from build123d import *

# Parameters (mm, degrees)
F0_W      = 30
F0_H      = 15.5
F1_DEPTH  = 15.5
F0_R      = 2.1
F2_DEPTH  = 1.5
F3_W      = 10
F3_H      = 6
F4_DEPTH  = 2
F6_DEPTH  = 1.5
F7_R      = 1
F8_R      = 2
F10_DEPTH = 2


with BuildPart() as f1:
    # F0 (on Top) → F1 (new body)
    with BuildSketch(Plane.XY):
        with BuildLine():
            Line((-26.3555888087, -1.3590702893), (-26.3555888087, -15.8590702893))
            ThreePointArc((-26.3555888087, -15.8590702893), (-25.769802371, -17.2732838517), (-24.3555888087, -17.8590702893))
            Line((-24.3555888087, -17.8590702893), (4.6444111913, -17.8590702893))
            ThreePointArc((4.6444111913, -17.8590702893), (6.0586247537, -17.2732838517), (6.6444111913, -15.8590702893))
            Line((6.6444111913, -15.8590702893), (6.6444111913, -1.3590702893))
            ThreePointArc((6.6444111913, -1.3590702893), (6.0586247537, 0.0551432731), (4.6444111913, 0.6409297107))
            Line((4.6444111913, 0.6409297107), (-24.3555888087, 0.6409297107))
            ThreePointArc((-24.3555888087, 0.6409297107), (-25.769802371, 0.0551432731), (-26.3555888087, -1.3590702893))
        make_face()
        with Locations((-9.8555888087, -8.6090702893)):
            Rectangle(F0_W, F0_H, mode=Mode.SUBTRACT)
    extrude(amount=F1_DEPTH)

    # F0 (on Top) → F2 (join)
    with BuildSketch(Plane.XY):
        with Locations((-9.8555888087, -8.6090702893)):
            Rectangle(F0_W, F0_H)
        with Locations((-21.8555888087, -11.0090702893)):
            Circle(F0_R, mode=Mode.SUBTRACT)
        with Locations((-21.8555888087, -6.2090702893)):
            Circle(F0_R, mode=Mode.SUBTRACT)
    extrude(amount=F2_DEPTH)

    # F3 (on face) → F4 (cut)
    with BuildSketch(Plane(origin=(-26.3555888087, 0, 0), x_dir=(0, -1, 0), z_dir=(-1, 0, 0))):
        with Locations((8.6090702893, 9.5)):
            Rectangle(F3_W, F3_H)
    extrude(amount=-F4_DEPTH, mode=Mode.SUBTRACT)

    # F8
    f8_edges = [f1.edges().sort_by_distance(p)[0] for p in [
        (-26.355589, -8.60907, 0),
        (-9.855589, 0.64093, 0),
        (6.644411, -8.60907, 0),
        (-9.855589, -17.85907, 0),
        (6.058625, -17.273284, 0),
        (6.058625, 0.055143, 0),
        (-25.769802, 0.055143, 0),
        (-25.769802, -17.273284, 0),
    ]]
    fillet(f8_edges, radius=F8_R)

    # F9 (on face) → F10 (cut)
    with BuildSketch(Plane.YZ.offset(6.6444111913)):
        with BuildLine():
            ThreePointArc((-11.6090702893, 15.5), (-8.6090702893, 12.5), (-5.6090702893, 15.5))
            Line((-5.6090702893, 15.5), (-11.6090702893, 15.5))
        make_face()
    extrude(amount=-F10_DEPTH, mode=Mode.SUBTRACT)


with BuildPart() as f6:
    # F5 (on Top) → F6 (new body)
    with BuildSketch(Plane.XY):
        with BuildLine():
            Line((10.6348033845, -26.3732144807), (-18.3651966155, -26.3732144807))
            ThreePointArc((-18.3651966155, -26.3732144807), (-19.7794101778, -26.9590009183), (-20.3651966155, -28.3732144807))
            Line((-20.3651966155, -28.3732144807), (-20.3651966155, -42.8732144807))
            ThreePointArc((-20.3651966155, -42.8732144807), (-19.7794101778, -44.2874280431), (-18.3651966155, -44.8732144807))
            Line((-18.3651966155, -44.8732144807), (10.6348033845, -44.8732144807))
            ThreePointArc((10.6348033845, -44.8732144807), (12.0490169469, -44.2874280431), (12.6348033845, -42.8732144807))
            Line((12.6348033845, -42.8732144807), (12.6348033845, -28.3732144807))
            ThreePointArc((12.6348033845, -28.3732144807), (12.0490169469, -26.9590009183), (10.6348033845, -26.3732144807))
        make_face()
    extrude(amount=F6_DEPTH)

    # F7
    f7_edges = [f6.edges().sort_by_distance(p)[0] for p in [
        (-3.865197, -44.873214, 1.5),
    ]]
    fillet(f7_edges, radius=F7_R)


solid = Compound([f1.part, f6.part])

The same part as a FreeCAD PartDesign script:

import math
import FreeCAD as App
import Part
import Sketcher
Q = App.Units.Quantity


def edges_at(feature, points):
    """Names of the edges that pass closest to the given points."""
    edges = feature.Shape.Edges
    near = lambda p: min(range(len(edges)), key=lambda i: edges[i].distToShape(Part.Vertex(*p))[0])
    return sorted({f"Edge{near(p) + 1}" for p in points})

doc = App.newDocument("Part")
params = doc.addObject("Spreadsheet::Sheet", "Params")
for row, (alias, value) in enumerate([
    ("sketch1_radius", "2 mm"),
    ("sketch1_width", "29 mm"),
    ("sketch1_width2", "30 mm"),
    ("sketch1_height", "14.5 mm"),
    ("sketch1_height2", "15.5 mm"),
    ("pad1_length", "15.5 mm"),
    ("sketch2_diameter", "4.2 mm"),
    ("sketch2_width", "30 mm"),
    ("sketch2_height", "15.5 mm"),
    ("pad2_length", "1.5 mm"),
    ("sketch3_width", "10 mm"),
    ("sketch3_height", "6 mm"),
    ("pocket1_length", "2 mm"),
    ("fillet_radius", "2 mm"),
    ("sketch4_radius", "3 mm"),
    ("pocket2_length", "2 mm"),
    ("sketch5_radius", "2 mm"),
    ("sketch5_width", "29 mm"),
    ("sketch5_height", "14.5 mm"),
    ("pad3_length", "1.5 mm"),
    ("fillet2_radius", "1 mm"),
], start=1):
    params.set(f"A{row}", alias)
    params.set(f"B{row}", "=" + value)
    params.setAlias(f"B{row}", alias)

body = doc.addObject("PartDesign::Body", "Body")

sketch1 = body.newObject("Sketcher::SketchObject", "Sketch")
sketch1.AttachmentSupport = (doc.getObject("XY_Plane"), [""])
sketch1.MapMode = "FlatFace"
sketch1.addGeometry([
    Part.LineSegment(App.Vector(-26.4, -1.4, 0), App.Vector(-26.4, -15.9, 0)),
    Part.ArcOfCircle(Part.Circle(App.Vector(-24.4, -15.9, 0), App.Vector(0, 0, 1), 2), math.radians(180), math.radians(270)),
    Part.LineSegment(App.Vector(-24.4, -17.9, 0), App.Vector(4.6, -17.9, 0)),
    Part.ArcOfCircle(Part.Circle(App.Vector(4.6, -15.9, 0), App.Vector(0, 0, 1), 2), math.radians(-90), math.radians(0)),
    Part.LineSegment(App.Vector(6.6, -15.9, 0), App.Vector(6.6, -1.4, 0)),
    Part.ArcOfCircle(Part.Circle(App.Vector(4.6, -1.4, 0), App.Vector(0, 0, 1), 2), math.radians(0), math.radians(90)),
    Part.LineSegment(App.Vector(4.6, 0.6, 0), App.Vector(-24.4, 0.6, 0)),
    Part.ArcOfCircle(Part.Circle(App.Vector(-24.4, -1.4, 0), App.Vector(0, 0, 1), 2), math.radians(90), math.radians(180)),
    Part.LineSegment(App.Vector(5.1, -16.4, 0), App.Vector(-24.9, -16.4, 0)),
    Part.LineSegment(App.Vector(-24.9, -16.4, 0), App.Vector(-24.9, -0.9, 0)),
    Part.LineSegment(App.Vector(-24.9, -0.9, 0), App.Vector(5.1, -0.9, 0)),
    Part.LineSegment(App.Vector(5.1, -0.9, 0), App.Vector(5.1, -16.4, 0)),
], False)
sketch1.addConstraint([
    Sketcher.Constraint("Tangent", 0, 2, 1, 1),
    Sketcher.Constraint("Tangent", 1, 2, 2, 1),
    Sketcher.Constraint("Tangent", 2, 2, 3, 1),
    Sketcher.Constraint("Tangent", 3, 2, 4, 1),
    Sketcher.Constraint("Tangent", 4, 2, 5, 1),
    Sketcher.Constraint("Tangent", 5, 2, 6, 1),
    Sketcher.Constraint("Tangent", 6, 2, 7, 1),
    Sketcher.Constraint("Tangent", 7, 2, 0, 1),
    Sketcher.Constraint("Coincident", 8, 2, 9, 1),
    Sketcher.Constraint("Coincident", 9, 2, 10, 1),
    Sketcher.Constraint("Coincident", 10, 2, 11, 1),
    Sketcher.Constraint("Coincident", 11, 2, 8, 1),
    Sketcher.Constraint("Vertical", 0),
    Sketcher.Constraint("Horizontal", 2),
    Sketcher.Constraint("Vertical", 4),
    Sketcher.Constraint("Horizontal", 6),
    Sketcher.Constraint("Horizontal", 8),
    Sketcher.Constraint("Vertical", 9),
    Sketcher.Constraint("Horizontal", 10),
    Sketcher.Constraint("Vertical", 11),
    Sketcher.Constraint("Equal", 1, 3),
    Sketcher.Constraint("Equal", 3, 5),
    Sketcher.Constraint("Equal", 5, 7),
    Sketcher.Constraint("Radius", 1, Q("2 mm")),
    Sketcher.Constraint("DistanceX", 2, 1, 2, 2, Q("29 mm")),
    Sketcher.Constraint("DistanceX", 8, 2, 8, 1, Q("30 mm")),
    Sketcher.Constraint("DistanceY", 0, 2, 0, 1, Q("14.5 mm")),
    Sketcher.Constraint("DistanceY", 9, 1, 9, 2, Q("15.5 mm")),
    Sketcher.Constraint("DistanceY", 8, 2, 7, 3, Q("15 mm")),
    Sketcher.Constraint("DistanceX", 8, 2, 1, 3, Q("0.5 mm")),
    Sketcher.Constraint("DistanceX", 1, 3, -1, 1, Q("24.355589 mm")),
    Sketcher.Constraint("DistanceY", 1, 3, -1, 1, Q("15.85907 mm")),
])
sketch1.setExpression("Constraints[23]", "Params.sketch1_radius")
sketch1.setExpression("Constraints[24]", "Params.sketch1_width")
sketch1.setExpression("Constraints[25]", "Params.sketch1_width2")
sketch1.setExpression("Constraints[26]", "Params.sketch1_height")
sketch1.setExpression("Constraints[27]", "Params.sketch1_height2")
pad1 = body.newObject("PartDesign::Pad", "Pad")
pad1.Profile = sketch1
pad1.setExpression("Length", "Params.pad1_length")

sketch2 = body.newObject("Sketcher::SketchObject", "Sketch001")
sketch2.AttachmentSupport = (doc.getObject("XY_Plane"), [""])
sketch2.MapMode = "FlatFace"
sketch2.addGeometry([
    Part.LineSegment(App.Vector(-24.9, -0.9, 0), App.Vector(-24.9, -16.4, 0)),
    Part.LineSegment(App.Vector(-24.9, -16.4, 0), App.Vector(5.1, -16.4, 0)),
    Part.LineSegment(App.Vector(5.1, -16.4, 0), App.Vector(5.1, -0.9, 0)),
    Part.LineSegment(App.Vector(5.1, -0.9, 0), App.Vector(-24.9, -0.9, 0)),
    Part.Circle(App.Vector(-21.9, -11, 0), App.Vector(0, 0, 1), 2.1),
    Part.Circle(App.Vector(-21.9, -6.2, 0), App.Vector(0, 0, 1), 2.1),
], False)
sketch2.addConstraint([
    Sketcher.Constraint("Coincident", 0, 2, 1, 1),
    Sketcher.Constraint("Coincident", 1, 2, 2, 1),
    Sketcher.Constraint("Coincident", 2, 2, 3, 1),
    Sketcher.Constraint("Coincident", 3, 2, 0, 1),
    Sketcher.Constraint("Vertical", 0),
    Sketcher.Constraint("Horizontal", 1),
    Sketcher.Constraint("Vertical", 2),
    Sketcher.Constraint("Horizontal", 3),
    Sketcher.Constraint("Equal", 4, 5),
    Sketcher.Constraint("Vertical", 4, 3, 5, 3),
    Sketcher.Constraint("Diameter", 4, Q("4.2 mm")),
    Sketcher.Constraint("DistanceX", 1, 1, 1, 2, Q("30 mm")),
    Sketcher.Constraint("DistanceY", 0, 2, 0, 1, Q("15.5 mm")),
    Sketcher.Constraint("DistanceX", 0, 2, 4, 3, Q("3 mm")),
    Sketcher.Constraint("DistanceY", 4, 3, 5, 3, Q("4.8 mm")),
    Sketcher.Constraint("DistanceY", 0, 2, 4, 3, Q("5.35 mm")),
    Sketcher.Constraint("DistanceX", 4, 3, -1, 1, Q("21.855589 mm")),
    Sketcher.Constraint("DistanceY", 4, 3, -1, 1, Q("11.00907 mm")),
])
sketch2.setExpression("Constraints[10]", "Params.sketch2_diameter")
sketch2.setExpression("Constraints[11]", "Params.sketch2_width")
sketch2.setExpression("Constraints[12]", "Params.sketch2_height")
pad2 = body.newObject("PartDesign::Pad", "Pad001")
pad2.Profile = sketch2
pad2.setExpression("Length", "Params.pad2_length")

sketch3 = body.newObject("Sketcher::SketchObject", "Sketch002")
sketch3.AttachmentSupport = (doc.getObject("YZ_Plane"), [""])
sketch3.MapMode = "FlatFace"
sketch3.AttachmentOffset = App.Placement(App.Vector(0, 0, -26.355589), App.Rotation())
sketch3.addGeometry([
    Part.LineSegment(App.Vector(-4, 12, 0), App.Vector(-4, 6, 0)),
    Part.LineSegment(App.Vector(-4, 6, 0), App.Vector(-14, 6, 0)),
    Part.LineSegment(App.Vector(-14, 6, 0), App.Vector(-14, 12, 0)),
    Part.LineSegment(App.Vector(-14, 12, 0), App.Vector(-4, 12, 0)),
], False)
sketch3.addConstraint([
    Sketcher.Constraint("Coincident", 0, 2, 1, 1),
    Sketcher.Constraint("Coincident", 1, 2, 2, 1),
    Sketcher.Constraint("Coincident", 2, 2, 3, 1),
    Sketcher.Constraint("Coincident", 3, 2, 0, 1),
    Sketcher.Constraint("Vertical", 0),
    Sketcher.Constraint("Horizontal", 1),
    Sketcher.Constraint("Vertical", 2),
    Sketcher.Constraint("Horizontal", 3),
    Sketcher.Constraint("DistanceX", 1, 2, 1, 1, Q("10 mm")),
    Sketcher.Constraint("DistanceY", 0, 2, 0, 1, Q("6 mm")),
    Sketcher.Constraint("DistanceY", -1, 1, 0, 2, Q("6.5 mm")),
    Sketcher.Constraint("DistanceX", 0, 2, -1, 1, Q("3.60907 mm")),
])
sketch3.setExpression("Constraints[8]", "Params.sketch3_width")
sketch3.setExpression("Constraints[9]", "Params.sketch3_height")
pocket1 = body.newObject("PartDesign::Pocket", "Pocket")
pocket1.Profile = sketch3
pocket1.setExpression("Length", "Params.pocket1_length")
pocket1.Reversed = True
doc.recompute()

fillet = body.newObject("PartDesign::Fillet", "Fillet")
fillet.Base = (pocket1, edges_at(pocket1, [
    (-26.356, -8.609, 0),
    (-9.856, 0.641, 0),
    (6.644, -8.609, 0),
    (-9.856, -17.859, 0),
    (6.059, -17.273, 0),
    (6.059, 0.055, 0),
    (-25.77, 0.055, 0),
    (-25.77, -17.273, 0),
]))
fillet.setExpression("Radius", "Params.fillet_radius")

sketch4 = body.newObject("Sketcher::SketchObject", "Sketch003")
sketch4.AttachmentSupport = (doc.getObject("YZ_Plane"), [""])
sketch4.MapMode = "FlatFace"
sketch4.AttachmentOffset = App.Placement(App.Vector(0, 0, 6.644411), App.Rotation())
sketch4.addGeometry([
    Part.ArcOfCircle(Part.Circle(App.Vector(-8.6, 15.5, 0), App.Vector(0, 0, 1), 3), math.radians(180), math.radians(360)),
    Part.LineSegment(App.Vector(-5.6, 15.5, 0), App.Vector(-11.6, 15.5, 0)),
], False)
sketch4.addConstraint([
    Sketcher.Constraint("Coincident", 0, 1, 1, 2),
    Sketcher.Constraint("Coincident", 1, 1, 0, 2),
    Sketcher.Constraint("Horizontal", 1),
    Sketcher.Constraint("Radius", 0, Q("3 mm")),
    Sketcher.Constraint("DistanceY", -1, 1, 0, 3, Q("15.5 mm")),
    Sketcher.Constraint("DistanceY", -1, 1, 0, 1, Q("15.5 mm")),
    Sketcher.Constraint("DistanceX", 0, 3, -1, 1, Q("8.60907 mm")),
])
sketch4.setExpression("Constraints[3]", "Params.sketch4_radius")
pocket2 = body.newObject("PartDesign::Pocket", "Pocket001")
pocket2.Profile = sketch4
pocket2.setExpression("Length", "Params.pocket2_length")
body2 = doc.addObject("PartDesign::Body", "Body001")

sketch5 = body2.newObject("Sketcher::SketchObject", "Sketch004")
sketch5.AttachmentSupport = (doc.getObject("XY_Plane001"), [""])
sketch5.MapMode = "FlatFace"
sketch5.addGeometry([
    Part.LineSegment(App.Vector(10.6, -26.4, 0), App.Vector(-18.4, -26.4, 0)),
    Part.ArcOfCircle(Part.Circle(App.Vector(-18.4, -28.4, 0), App.Vector(0, 0, 1), 2), math.radians(90), math.radians(180)),
    Part.LineSegment(App.Vector(-20.4, -28.4, 0), App.Vector(-20.4, -42.9, 0)),
    Part.ArcOfCircle(Part.Circle(App.Vector(-18.4, -42.9, 0), App.Vector(0, 0, 1), 2), math.radians(180), math.radians(270)),
    Part.LineSegment(App.Vector(-18.4, -44.9, 0), App.Vector(10.6, -44.9, 0)),
    Part.ArcOfCircle(Part.Circle(App.Vector(10.6, -42.9, 0), App.Vector(0, 0, 1), 2), math.radians(-90), math.radians(0)),
    Part.LineSegment(App.Vector(12.6, -42.9, 0), App.Vector(12.6, -28.4, 0)),
    Part.ArcOfCircle(Part.Circle(App.Vector(10.6, -28.4, 0), App.Vector(0, 0, 1), 2), math.radians(0), math.radians(90)),
], False)
sketch5.addConstraint([
    Sketcher.Constraint("Tangent", 0, 2, 1, 1),
    Sketcher.Constraint("Tangent", 1, 2, 2, 1),
    Sketcher.Constraint("Tangent", 2, 2, 3, 1),
    Sketcher.Constraint("Tangent", 3, 2, 4, 1),
    Sketcher.Constraint("Tangent", 4, 2, 5, 1),
    Sketcher.Constraint("Tangent", 5, 2, 6, 1),
    Sketcher.Constraint("Tangent", 6, 2, 7, 1),
    Sketcher.Constraint("Tangent", 7, 2, 0, 1),
    Sketcher.Constraint("Horizontal", 0),
    Sketcher.Constraint("Vertical", 2),
    Sketcher.Constraint("Horizontal", 4),
    Sketcher.Constraint("Vertical", 6),
    Sketcher.Constraint("Equal", 1, 3),
    Sketcher.Constraint("Equal", 3, 5),
    Sketcher.Constraint("Equal", 5, 7),
    Sketcher.Constraint("Radius", 1, Q("2 mm")),
    Sketcher.Constraint("DistanceX", 0, 2, 0, 1, Q("29 mm")),
    Sketcher.Constraint("DistanceY", 2, 2, 2, 1, Q("14.5 mm")),
    Sketcher.Constraint("DistanceX", 1, 3, -1, 1, Q("18.365197 mm")),
    Sketcher.Constraint("DistanceY", 1, 3, -1, 1, Q("28.373214 mm")),
])
sketch5.setExpression("Constraints[15]", "Params.sketch5_radius")
sketch5.setExpression("Constraints[16]", "Params.sketch5_width")
sketch5.setExpression("Constraints[17]", "Params.sketch5_height")
pad3 = body2.newObject("PartDesign::Pad", "Pad002")
pad3.Profile = sketch5
pad3.setExpression("Length", "Params.pad3_length")
doc.recompute()

fillet2 = body2.newObject("PartDesign::Fillet", "Fillet001")
fillet2.Base = (pad3, edges_at(pad3, [(-3.865, -44.873, 1.5)]))
fillet2.setExpression("Radius", "Params.fillet2_radius")

doc.recompute()
